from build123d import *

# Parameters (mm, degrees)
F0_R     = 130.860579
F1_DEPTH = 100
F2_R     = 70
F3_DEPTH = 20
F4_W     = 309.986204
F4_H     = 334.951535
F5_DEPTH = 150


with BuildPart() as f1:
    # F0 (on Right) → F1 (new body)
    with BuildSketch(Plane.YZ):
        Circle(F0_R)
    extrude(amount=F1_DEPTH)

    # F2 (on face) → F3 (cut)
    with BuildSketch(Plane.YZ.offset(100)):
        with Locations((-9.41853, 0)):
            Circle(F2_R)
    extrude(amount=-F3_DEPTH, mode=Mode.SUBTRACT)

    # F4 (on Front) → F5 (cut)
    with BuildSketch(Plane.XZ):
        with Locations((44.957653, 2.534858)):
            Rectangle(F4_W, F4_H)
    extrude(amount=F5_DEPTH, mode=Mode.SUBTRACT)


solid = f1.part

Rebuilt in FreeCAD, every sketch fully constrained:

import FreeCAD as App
import Part
import Sketcher

V = App.Vector


def add_polygon(sketch, points):
    """Adds a closed chain of lines whose ends are joined by coincident constraints."""
    first, n = sketch.GeometryCount, len(points)
    for a, b in zip(points, points[1:] + points[:1]):
        sketch.addGeometry(Part.LineSegment(App.Vector(*a, 0), App.Vector(*b, 0)), False)
    for i in range(n):
        sketch.addConstraint(Sketcher.Constraint("Coincident", first + i, 2, first + (i + 1) % n, 1))

doc = App.newDocument("Part")
body = doc.addObject("PartDesign::Body", "Body")

sketch1 = body.newObject("Sketcher::SketchObject", "Sketch")
sketch1.AttachmentSupport = (doc.getObject("YZ_Plane"), [""])
sketch1.MapMode = "FlatFace"
sketch1.addGeometry(Part.Circle(V(0, 0, 0), V(0, 0, 1), 130.860579), False)
sketch1.addConstraint([
    Sketcher.Constraint("Coincident", 0, 3, -1, 1),
    Sketcher.Constraint("Diameter", 0, 261.721158),
])
pad1 = body.newObject("PartDesign::Pad", "Pad")
pad1.Profile = sketch1
pad1.Length = 100

sketch2 = body.newObject("Sketcher::SketchObject", "Sketch001")
sketch2.AttachmentSupport = (doc.getObject("YZ_Plane"), [""])
sketch2.MapMode = "FlatFace"
sketch2.AttachmentOffset = App.Placement(V(0, 0, 100), App.Rotation())
sketch2.addGeometry(Part.Circle(V(-9.41853, 0, 0), V(0, 0, 1), 70), False)
sketch2.addConstraint([
    Sketcher.Constraint("PointOnObject", 0, 3, -1),
    Sketcher.Constraint("Diameter", 0, 140.0),
    Sketcher.Constraint("DistanceX", 0, 3, -1, 1, 9.41853),
])
pocket1 = body.newObject("PartDesign::Pocket", "Pocket")
pocket1.Profile = sketch2
pocket1.Length = 20

sketch3 = body.newObject("Sketcher::SketchObject", "Sketch002")
sketch3.AttachmentSupport = (doc.getObject("XZ_Plane"), [""])
sketch3.MapMode = "FlatFace"
add_polygon(sketch3, [(-110.035449, 170.010626), (-110.035449, -164.94091), (199.950755, -164.94091), (199.950755, 170.010626)])
sketch3.addConstraint([
    Sketcher.Constraint("Vertical", 0),
    Sketcher.Constraint("Horizontal", 1),
    Sketcher.Constraint("Vertical", 2),
    Sketcher.Constraint("Horizontal", 3),
    Sketcher.Constraint("DistanceX", 1, 1, 1, 2, 309.986204),
    Sketcher.Constraint("DistanceY", 0, 2, 0, 1, 334.951535),
    Sketcher.Constraint("DistanceX", 0, 2, -1, 1, 110.035449),
    Sketcher.Constraint("DistanceY", 0, 2, -1, 1, 164.94091),
])
pocket2 = body.newObject("PartDesign::Pocket", "Pocket001")
pocket2.Profile = sketch3
pocket2.Length = 150
pocket2.Reversed = True

doc.recompute()
